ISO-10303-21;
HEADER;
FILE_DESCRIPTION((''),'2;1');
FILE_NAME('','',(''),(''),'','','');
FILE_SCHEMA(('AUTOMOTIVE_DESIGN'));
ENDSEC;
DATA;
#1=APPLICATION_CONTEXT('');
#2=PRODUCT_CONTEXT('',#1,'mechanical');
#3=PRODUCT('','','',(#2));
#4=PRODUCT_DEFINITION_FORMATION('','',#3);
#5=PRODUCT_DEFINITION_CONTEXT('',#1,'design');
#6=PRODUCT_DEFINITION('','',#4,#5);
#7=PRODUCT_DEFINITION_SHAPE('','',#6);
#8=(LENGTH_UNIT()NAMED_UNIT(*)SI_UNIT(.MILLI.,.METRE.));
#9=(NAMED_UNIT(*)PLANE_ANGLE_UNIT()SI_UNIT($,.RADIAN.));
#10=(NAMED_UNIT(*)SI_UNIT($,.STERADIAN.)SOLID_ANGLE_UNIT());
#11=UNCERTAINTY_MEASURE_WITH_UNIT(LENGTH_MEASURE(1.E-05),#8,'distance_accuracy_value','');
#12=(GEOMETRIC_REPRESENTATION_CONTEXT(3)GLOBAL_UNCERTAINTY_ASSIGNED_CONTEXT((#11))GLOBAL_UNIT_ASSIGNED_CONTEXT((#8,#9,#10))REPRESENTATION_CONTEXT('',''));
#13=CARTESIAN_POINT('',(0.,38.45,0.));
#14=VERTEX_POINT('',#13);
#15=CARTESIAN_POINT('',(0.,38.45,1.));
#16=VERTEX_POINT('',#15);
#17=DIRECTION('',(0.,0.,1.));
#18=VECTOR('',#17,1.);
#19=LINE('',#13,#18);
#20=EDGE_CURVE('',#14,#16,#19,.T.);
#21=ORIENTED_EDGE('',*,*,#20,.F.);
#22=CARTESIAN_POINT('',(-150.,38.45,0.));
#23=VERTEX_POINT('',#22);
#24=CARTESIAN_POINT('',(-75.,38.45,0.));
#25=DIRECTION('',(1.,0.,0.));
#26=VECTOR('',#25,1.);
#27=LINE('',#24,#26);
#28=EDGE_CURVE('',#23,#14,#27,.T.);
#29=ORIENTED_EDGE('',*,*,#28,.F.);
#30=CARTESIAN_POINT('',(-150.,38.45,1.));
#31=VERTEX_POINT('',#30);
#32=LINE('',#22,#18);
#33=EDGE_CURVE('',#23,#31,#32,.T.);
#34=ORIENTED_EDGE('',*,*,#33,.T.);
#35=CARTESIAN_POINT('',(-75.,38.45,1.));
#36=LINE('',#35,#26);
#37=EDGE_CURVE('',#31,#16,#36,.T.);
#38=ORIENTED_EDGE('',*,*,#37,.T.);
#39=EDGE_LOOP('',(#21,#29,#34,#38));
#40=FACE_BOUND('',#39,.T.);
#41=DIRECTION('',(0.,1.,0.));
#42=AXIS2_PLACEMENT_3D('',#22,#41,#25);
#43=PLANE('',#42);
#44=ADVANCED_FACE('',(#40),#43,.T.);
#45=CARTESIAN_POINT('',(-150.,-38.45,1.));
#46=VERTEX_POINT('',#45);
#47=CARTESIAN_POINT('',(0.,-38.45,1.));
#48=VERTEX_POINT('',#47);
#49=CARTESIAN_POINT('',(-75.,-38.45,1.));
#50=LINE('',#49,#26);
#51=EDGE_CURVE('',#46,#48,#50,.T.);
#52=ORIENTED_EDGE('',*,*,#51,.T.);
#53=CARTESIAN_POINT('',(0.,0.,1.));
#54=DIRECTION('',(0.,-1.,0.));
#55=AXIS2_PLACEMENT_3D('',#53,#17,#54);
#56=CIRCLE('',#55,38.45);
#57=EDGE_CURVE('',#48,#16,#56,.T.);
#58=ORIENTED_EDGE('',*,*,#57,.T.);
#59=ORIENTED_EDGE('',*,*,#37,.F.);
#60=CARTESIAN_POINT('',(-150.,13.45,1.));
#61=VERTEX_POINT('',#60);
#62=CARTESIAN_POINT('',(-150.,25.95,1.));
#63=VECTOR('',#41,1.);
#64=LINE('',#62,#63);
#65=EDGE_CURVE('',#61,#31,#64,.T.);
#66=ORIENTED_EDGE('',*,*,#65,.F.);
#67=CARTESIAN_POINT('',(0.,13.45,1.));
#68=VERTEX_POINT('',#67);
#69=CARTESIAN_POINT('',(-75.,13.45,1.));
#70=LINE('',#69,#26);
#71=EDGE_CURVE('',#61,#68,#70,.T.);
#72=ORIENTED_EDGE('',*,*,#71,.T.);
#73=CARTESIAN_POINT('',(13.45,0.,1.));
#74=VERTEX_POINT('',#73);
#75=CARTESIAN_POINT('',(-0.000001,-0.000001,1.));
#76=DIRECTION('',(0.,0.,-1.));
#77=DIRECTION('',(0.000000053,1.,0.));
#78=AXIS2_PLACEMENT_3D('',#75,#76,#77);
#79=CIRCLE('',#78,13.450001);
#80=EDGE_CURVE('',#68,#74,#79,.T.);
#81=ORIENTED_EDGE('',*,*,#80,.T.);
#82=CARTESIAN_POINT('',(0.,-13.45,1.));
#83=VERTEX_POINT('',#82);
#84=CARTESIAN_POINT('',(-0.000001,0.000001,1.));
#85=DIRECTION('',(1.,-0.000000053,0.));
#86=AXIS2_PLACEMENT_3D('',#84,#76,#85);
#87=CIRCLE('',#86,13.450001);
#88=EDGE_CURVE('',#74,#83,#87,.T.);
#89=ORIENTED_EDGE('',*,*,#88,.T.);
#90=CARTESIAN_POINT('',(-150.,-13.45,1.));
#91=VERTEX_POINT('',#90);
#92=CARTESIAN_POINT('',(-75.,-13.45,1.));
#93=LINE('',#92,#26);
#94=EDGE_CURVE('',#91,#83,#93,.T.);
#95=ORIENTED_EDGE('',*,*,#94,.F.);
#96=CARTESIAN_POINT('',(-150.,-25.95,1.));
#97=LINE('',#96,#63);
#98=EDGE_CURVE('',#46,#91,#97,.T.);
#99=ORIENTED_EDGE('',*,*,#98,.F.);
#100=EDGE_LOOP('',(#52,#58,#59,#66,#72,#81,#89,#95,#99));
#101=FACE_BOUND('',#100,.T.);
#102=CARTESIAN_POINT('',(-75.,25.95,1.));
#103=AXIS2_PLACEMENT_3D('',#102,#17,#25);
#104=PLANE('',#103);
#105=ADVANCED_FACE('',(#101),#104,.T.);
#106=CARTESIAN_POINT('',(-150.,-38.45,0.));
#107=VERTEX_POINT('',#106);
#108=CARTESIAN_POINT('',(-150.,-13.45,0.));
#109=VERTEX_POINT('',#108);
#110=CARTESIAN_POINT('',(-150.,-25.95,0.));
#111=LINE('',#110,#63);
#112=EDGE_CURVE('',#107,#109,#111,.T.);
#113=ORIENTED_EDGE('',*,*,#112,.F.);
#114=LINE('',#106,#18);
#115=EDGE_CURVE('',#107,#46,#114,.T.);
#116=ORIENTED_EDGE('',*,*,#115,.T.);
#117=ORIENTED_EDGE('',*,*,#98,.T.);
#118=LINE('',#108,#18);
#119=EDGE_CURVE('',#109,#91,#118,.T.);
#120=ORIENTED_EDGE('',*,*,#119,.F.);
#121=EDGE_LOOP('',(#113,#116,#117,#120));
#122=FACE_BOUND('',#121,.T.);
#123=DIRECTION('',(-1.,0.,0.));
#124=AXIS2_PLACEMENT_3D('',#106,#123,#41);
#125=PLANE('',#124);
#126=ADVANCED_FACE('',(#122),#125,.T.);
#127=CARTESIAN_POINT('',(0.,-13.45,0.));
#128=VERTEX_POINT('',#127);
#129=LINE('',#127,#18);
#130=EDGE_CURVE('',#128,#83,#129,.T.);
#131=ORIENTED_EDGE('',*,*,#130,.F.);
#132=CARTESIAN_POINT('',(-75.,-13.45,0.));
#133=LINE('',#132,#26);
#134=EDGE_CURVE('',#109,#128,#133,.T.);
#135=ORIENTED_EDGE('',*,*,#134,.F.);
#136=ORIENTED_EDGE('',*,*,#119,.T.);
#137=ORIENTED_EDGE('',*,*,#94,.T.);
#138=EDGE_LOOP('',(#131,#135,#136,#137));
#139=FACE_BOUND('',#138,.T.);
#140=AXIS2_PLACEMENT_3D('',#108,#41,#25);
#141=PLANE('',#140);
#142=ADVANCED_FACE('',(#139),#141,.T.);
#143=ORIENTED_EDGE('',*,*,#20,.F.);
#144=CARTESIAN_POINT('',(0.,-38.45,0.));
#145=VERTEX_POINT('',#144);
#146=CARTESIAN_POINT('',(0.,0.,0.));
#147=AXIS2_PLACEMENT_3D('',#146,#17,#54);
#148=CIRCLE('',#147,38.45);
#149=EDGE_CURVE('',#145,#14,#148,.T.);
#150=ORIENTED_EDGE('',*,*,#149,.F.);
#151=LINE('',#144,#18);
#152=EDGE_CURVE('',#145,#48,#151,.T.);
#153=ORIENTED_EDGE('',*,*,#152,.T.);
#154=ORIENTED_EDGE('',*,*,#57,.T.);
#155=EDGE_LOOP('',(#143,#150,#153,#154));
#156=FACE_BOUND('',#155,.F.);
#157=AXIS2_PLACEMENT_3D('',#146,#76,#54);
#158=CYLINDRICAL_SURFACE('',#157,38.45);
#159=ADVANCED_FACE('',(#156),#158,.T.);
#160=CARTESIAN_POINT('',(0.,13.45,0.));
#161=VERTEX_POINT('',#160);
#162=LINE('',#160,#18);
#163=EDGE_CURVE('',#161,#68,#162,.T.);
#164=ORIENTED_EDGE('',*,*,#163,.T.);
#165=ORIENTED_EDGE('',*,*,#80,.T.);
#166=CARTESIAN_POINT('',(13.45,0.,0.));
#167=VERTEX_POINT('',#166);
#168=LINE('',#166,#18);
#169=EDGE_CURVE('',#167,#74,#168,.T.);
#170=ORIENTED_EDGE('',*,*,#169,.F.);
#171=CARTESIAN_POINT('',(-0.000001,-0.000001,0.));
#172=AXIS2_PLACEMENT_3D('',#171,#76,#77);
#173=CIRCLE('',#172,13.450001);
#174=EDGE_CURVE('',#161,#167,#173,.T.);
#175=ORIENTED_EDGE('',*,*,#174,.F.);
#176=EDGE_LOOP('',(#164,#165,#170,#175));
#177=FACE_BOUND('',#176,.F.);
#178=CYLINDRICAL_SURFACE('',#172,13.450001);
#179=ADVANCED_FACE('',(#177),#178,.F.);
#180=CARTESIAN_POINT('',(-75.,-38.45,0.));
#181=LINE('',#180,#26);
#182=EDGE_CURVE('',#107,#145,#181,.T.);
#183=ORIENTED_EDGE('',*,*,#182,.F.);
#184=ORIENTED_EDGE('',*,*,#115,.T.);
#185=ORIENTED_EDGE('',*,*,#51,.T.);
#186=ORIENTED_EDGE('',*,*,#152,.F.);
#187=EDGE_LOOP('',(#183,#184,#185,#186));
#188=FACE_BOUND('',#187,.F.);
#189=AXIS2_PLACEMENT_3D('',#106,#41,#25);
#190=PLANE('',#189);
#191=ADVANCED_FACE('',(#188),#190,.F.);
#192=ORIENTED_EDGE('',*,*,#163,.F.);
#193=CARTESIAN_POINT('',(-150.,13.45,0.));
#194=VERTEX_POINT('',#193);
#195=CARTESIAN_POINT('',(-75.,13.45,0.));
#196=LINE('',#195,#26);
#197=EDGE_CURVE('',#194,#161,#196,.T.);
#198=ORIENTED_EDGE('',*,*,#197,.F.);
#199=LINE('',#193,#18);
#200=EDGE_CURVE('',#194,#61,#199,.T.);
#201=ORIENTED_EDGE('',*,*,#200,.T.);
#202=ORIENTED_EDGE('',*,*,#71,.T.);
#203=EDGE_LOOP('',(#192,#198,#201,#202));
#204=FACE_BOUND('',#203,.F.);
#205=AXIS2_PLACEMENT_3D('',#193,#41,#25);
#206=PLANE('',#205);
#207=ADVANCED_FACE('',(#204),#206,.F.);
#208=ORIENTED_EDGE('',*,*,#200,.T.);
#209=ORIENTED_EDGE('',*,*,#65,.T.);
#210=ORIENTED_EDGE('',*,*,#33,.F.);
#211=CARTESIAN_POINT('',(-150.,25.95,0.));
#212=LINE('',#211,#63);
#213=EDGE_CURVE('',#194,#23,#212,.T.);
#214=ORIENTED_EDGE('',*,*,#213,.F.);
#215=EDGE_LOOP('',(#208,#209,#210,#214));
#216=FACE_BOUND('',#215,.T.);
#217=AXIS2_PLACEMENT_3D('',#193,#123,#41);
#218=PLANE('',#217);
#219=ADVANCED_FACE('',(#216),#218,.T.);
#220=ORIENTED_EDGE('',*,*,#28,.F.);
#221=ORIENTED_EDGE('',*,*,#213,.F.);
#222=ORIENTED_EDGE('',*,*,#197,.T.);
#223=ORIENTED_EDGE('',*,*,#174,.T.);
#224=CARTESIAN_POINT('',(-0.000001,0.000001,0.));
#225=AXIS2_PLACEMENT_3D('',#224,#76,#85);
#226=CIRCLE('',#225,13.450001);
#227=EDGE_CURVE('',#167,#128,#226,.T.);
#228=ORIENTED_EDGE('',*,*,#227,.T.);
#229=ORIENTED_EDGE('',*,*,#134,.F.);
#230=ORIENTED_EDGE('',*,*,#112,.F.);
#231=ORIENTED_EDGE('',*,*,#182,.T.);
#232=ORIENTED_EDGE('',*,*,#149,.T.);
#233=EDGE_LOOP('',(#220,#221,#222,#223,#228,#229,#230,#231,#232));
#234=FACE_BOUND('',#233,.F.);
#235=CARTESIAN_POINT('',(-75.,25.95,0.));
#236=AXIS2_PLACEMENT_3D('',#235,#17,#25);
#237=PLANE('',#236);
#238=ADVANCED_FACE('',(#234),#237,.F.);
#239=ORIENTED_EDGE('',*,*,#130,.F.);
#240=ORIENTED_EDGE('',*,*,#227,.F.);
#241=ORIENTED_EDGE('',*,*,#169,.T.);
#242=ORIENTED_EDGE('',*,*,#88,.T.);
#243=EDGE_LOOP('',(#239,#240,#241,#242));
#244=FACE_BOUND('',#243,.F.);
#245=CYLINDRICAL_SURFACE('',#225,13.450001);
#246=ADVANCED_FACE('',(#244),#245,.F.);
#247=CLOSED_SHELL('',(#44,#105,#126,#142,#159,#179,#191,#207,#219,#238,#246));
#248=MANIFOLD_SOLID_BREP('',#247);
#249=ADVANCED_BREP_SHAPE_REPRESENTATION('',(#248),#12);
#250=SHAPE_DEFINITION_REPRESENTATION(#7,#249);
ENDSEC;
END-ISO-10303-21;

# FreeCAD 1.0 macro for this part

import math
import FreeCAD as App
import Part
import Sketcher

V = App.Vector
Q = App.Units.Quantity

doc = App.newDocument("Part")
body = doc.addObject("PartDesign::Body", "Body")

# Sketch on XY plane
sketch1 = body.newObject("Sketcher::SketchObject", "Sketch")
sketch1.AttachmentSupport = (doc.getObject("XY_Plane"), [""])
sketch1.MapMode = "FlatFace"
sketch1.addGeometry([
    Part.LineSegment(V(-150, 38.45, 0), V(-150, 13.45, 0)),  # 0
    Part.LineSegment(V(-150, 13.45, 0), V(0, 13.45, 0)),  # 1
    Part.ArcOfCircle(Part.Circle(V(-0.000001, -0.000001, 0), V(0, 0, 1), 13.450001), math.radians(0.000003), math.radians(89.999997)),  # 2
    Part.ArcOfCircle(Part.Circle(V(-0.000001, 0.000001, 0), V(0, 0, 1), 13.450001), math.radians(-89.999997), math.radians(-0.000003)),  # 3
    Part.LineSegment(V(0, -13.45, 0), V(-150, -13.45, 0)),  # 4
    Part.LineSegment(V(-150, -13.45, 0), V(-150, -38.45, 0)),  # 5
    Part.LineSegment(V(-150, -38.45, 0), V(0, -38.45, 0)),  # 6
    Part.ArcOfCircle(Part.Circle(V(0, 0, 0), V(0, 0, 1), 38.45), math.radians(-90), math.radians(90)),  # 7
    Part.LineSegment(V(0, 38.45, 0), V(-150, 38.45, 0)),  # 8
], False)
sketch1.addConstraint([
    Sketcher.Constraint("Coincident", 0, 2, 1, 1),
    Sketcher.Constraint("Tangent", 1, 2, 2, 2),
    Sketcher.Constraint("Tangent", 2, 1, 3, 2),
    Sketcher.Constraint("Tangent", 3, 1, 4, 1),
    Sketcher.Constraint("Coincident", 4, 2, 5, 1),
    Sketcher.Constraint("Coincident", 5, 2, 6, 1),
    Sketcher.Constraint("Tangent", 6, 2, 7, 1),
    Sketcher.Constraint("Tangent", 7, 2, 8, 1),
    Sketcher.Constraint("Coincident", 8, 2, 0, 1),
    Sketcher.Constraint("Vertical", 0),
    Sketcher.Constraint("Horizontal", 1),
    Sketcher.Constraint("Horizontal", 4),
    Sketcher.Constraint("Vertical", 5),
    Sketcher.Constraint("Horizontal", 6),
    Sketcher.Constraint("Horizontal", 8),
    Sketcher.Constraint("Coincident", 2, 3, -1, 1),
    Sketcher.Constraint("Coincident", 7, 3, -1, 1),
    Sketcher.Constraint("Equal", 2, 3),
    Sketcher.Constraint("PointOnObject", 2, 1, -1),
    Sketcher.Constraint("Vertical", 0, 2, 4, 2),
    Sketcher.Constraint("DistanceX", 1, 1, 1, 2, Q("150 mm")),
    Sketcher.Constraint("DistanceY", 0, 2, 0, 1, Q("25 mm")),
    Sketcher.Constraint("Radius", 2, Q("13.450001 mm")),
])
pad1 = body.newObject("PartDesign::Pad", "Pad")
pad1.Profile = sketch1
pad1.Length = 1

doc.recompute()
